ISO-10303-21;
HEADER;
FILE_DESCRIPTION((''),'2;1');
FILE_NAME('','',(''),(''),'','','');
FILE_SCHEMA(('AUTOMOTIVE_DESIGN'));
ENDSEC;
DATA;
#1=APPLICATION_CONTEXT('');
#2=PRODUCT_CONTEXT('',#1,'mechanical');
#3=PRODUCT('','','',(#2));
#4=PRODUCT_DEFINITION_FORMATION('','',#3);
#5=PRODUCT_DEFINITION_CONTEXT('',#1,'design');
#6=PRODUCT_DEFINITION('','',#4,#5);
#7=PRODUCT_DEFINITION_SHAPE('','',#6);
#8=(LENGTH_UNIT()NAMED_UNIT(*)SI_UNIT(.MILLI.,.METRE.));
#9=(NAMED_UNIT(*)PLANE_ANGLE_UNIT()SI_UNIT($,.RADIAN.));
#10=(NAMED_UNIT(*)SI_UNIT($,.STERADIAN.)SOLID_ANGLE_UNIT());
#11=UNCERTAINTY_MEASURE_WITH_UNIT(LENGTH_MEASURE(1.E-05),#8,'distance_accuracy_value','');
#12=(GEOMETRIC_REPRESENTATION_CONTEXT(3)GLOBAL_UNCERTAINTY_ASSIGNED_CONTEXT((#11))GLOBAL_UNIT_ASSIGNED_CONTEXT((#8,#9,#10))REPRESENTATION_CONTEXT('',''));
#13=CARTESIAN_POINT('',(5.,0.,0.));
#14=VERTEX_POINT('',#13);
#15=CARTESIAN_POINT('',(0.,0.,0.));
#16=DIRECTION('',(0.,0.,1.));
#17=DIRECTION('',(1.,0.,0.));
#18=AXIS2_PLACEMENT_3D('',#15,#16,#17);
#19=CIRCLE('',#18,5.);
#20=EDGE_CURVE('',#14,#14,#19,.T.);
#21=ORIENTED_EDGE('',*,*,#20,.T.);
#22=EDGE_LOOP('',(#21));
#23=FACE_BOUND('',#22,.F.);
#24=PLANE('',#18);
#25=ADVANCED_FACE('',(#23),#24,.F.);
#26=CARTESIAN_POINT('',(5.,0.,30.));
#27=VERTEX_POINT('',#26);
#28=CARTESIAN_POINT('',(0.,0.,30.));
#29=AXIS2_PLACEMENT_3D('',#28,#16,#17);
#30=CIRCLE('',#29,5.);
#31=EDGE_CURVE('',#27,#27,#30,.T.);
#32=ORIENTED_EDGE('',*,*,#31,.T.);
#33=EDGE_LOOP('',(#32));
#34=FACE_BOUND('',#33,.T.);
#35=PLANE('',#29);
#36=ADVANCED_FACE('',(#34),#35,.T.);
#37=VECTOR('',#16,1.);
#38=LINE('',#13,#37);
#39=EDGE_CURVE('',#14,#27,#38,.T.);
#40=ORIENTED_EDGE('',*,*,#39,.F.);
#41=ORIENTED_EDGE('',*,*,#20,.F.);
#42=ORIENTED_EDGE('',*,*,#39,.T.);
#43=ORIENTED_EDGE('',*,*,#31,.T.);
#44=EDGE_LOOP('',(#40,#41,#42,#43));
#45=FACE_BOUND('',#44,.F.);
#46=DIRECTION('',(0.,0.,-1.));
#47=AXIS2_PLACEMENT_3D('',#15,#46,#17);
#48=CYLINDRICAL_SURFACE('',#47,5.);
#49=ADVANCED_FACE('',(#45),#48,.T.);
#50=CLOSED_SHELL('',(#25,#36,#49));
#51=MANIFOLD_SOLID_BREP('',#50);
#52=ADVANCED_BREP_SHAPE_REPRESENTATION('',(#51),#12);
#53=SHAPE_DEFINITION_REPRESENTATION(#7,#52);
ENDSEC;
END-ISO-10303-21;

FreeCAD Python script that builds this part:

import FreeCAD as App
import Part
import Sketcher

V = App.Vector
Q = App.Units.Quantity

doc = App.newDocument("Part")
body = doc.addObject("PartDesign::Body", "Body")

# Sketch on XY plane
sketch1 = body.newObject("Sketcher::SketchObject", "Sketch")
sketch1.AttachmentSupport = (doc.getObject("XY_Plane"), [""])
sketch1.MapMode = "FlatFace"
sketch1.addGeometry(Part.Circle(V(0, 0, 0), V(0, 0, 1), 5), False)
sketch1.addConstraint(Sketcher.Constraint("Coincident", 0, 3, -1, 1))
sketch1.addConstraint(Sketcher.Constraint("Diameter", 0, Q("10 mm")))
pad1 = body.newObject("PartDesign::Pad", "Pad")
pad1.Profile = sketch1
pad1.Length = 30

doc.recompute()
